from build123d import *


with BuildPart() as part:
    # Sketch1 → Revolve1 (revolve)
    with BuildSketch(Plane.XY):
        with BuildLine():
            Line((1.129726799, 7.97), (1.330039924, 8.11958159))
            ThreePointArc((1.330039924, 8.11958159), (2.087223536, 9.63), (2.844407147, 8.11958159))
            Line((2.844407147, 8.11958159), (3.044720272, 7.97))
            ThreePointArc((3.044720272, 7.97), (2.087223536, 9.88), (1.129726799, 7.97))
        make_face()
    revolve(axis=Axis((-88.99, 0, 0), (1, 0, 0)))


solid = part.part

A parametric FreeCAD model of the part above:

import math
import FreeCAD as App
import Part
import Sketcher
from FreeCAD import Vector

doc = App.newDocument("Part")
params = doc.addObject("Spreadsheet::Sheet", "Params")
for row, (alias, value) in enumerate([
    ("revolution_angle", "360 deg"),
], start=1):
    params.set(f"A{row}", alias)
    params.set(f"B{row}", "=" + value)
    params.setAlias(f"B{row}", alias)

body = doc.addObject("PartDesign::Body", "Body")

# Sketch on XY plane
sketch1 = body.newObject("Sketcher::SketchObject", "Sketch")
sketch1.AttachmentSupport = (doc.getObject("XY_Plane"), [""])
sketch1.MapMode = "FlatFace"
sketch1.addGeometry([
    Part.LineSegment(Vector(1.129727, 7.97, 0), Vector(1.33004, 8.119582, 0)),
    Part.ArcOfCircle(Part.Circle(Vector(2.087224, 8.685, 0), Vector(0, 0, 1), 0.945), math.radians(-36.750126), math.radians(216.750126)),
    Part.LineSegment(Vector(2.844407, 8.119582, 0), Vector(3.04472, 7.97, 0)),
    Part.ArcOfCircle(Part.Circle(Vector(2.087224, 8.685, 0), Vector(0, 0, 1), 1.195), math.radians(-36.750126), math.radians(216.750126)),
], False)
sketch1.addConstraint([
    Sketcher.Constraint("Coincident", 0, 2, 1, 2),
    Sketcher.Constraint("Coincident", 1, 1, 2, 1),
    Sketcher.Constraint("Coincident", 2, 2, 3, 1),
    Sketcher.Constraint("Coincident", 3, 2, 0, 1),
    Sketcher.Constraint("Coincident", 3, 3, 1, 3),
    Sketcher.Constraint("Horizontal", 0, 2, 1, 1),
    Sketcher.Constraint("Horizontal", 2, 2, 3, 2),
    Sketcher.Constraint("Radius", 1, 0.945),
    Sketcher.Constraint("Radius", 3, 1.195),
    Sketcher.Constraint("DistanceY", -1, 1, 2, 2, 7.97),
    Sketcher.Constraint("DistanceY", -1, 1, 1, 3, 8.685),
    Sketcher.Constraint("DistanceX", -1, 1, 0, 2, 1.33004),
    Sketcher.Constraint("DistanceY", -1, 1, 0, 2, 8.119582),
])
revolution = body.newObject("PartDesign::Revolution", "Revolution")
revolution.Profile = sketch1
revolution.ReferenceAxis = (sketch1, ["H_Axis"])
revolution.setExpression("Angle", "Params.revolution_angle")

doc.recompute()
